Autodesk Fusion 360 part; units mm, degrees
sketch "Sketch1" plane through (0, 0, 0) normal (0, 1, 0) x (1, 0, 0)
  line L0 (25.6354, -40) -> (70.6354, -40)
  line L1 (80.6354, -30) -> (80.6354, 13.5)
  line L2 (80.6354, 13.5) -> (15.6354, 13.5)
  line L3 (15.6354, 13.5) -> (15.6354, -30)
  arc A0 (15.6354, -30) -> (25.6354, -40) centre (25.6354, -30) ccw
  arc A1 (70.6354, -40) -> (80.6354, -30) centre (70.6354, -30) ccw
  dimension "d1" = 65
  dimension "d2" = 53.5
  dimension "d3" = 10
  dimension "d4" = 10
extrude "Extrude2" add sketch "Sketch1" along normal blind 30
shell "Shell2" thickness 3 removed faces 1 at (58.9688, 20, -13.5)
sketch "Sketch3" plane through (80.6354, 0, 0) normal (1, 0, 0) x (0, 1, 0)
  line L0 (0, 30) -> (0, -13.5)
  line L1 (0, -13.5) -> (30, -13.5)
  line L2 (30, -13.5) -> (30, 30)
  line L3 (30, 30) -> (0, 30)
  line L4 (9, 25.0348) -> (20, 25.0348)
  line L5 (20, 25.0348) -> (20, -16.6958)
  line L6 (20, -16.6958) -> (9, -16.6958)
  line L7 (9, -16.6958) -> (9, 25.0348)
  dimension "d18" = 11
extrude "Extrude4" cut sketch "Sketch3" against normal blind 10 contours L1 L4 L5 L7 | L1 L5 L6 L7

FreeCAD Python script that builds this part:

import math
import FreeCAD as App
import Part
import Sketcher
Q = App.Units.Quantity


def faces_at(feature, points):
    """Names of the faces that lie closest to the given points."""
    faces = feature.Shape.Faces
    near = lambda p: min(range(len(faces)), key=lambda i: faces[i].distToShape(Part.Vertex(*p))[0])
    return sorted({f"Face{near(p) + 1}" for p in points})

doc = App.newDocument("Part")
params = doc.addObject("Spreadsheet::Sheet", "Params")
for row, (alias, value) in enumerate([
    ("sketch1_radius", "10 mm"),
    ("sketch1_width", "65 mm"),
    ("pad1_length", "30 mm"),
    ("thickness_wall", "3 mm"),
    ("sketch2_width", "11 mm"),
    ("pocket1_length", "10 mm"),
], start=1):
    params.set(f"A{row}", alias)
    params.set(f"B{row}", "=" + value)
    params.setAlias(f"B{row}", alias)

body = doc.addObject("PartDesign::Body", "Body")

# Sketch on XZ plane
sketch1 = body.newObject("Sketcher::SketchObject", "Sketch")
sketch1.AttachmentSupport = (doc.getObject("XZ_Plane"), [""])
sketch1.MapMode = "FlatFace"
sketch1.addGeometry([
    Part.ArcOfCircle(Part.Circle(App.Vector(26, 30, 0), App.Vector(0, 0, 1), 10), math.radians(90), math.radians(180)),  # 0
    Part.LineSegment(App.Vector(26, 40, 0), App.Vector(71, 40, 0)),  # 1
    Part.ArcOfCircle(Part.Circle(App.Vector(71, 30, 0), App.Vector(0, 0, 1), 10), math.radians(0), math.radians(90)),  # 2
    Part.LineSegment(App.Vector(81, 30, 0), App.Vector(81, -14, 0)),  # 3
    Part.LineSegment(App.Vector(81, -14, 0), App.Vector(16, -14, 0)),  # 4
    Part.LineSegment(App.Vector(16, -14, 0), App.Vector(16, 30, 0)),  # 5
], False)
sketch1.addConstraint([
    Sketcher.Constraint("Tangent", 0, 1, 1, 1),
    Sketcher.Constraint("Tangent", 1, 2, 2, 2),
    Sketcher.Constraint("Tangent", 2, 1, 3, 1),
    Sketcher.Constraint("Coincident", 3, 2, 4, 1),
    Sketcher.Constraint("Coincident", 4, 2, 5, 1),
    Sketcher.Constraint("Tangent", 5, 2, 0, 2),
    Sketcher.Constraint("Horizontal", 1),
    Sketcher.Constraint("Vertical", 3),
    Sketcher.Constraint("Horizontal", 4),
    Sketcher.Constraint("Vertical", 5),
    Sketcher.Constraint("Equal", 0, 2),
    Sketcher.Constraint("Radius", 0, Q("10 mm")),
    Sketcher.Constraint("DistanceX", 4, 2, 4, 1, Q("65 mm")),
    Sketcher.Constraint("DistanceY", 3, 2, 1, 2, Q("53.5 mm")),
    Sketcher.Constraint("DistanceY", -1, 1, 0, 3, Q("30 mm")),
    Sketcher.Constraint("DistanceX", -1, 1, 0, 3, Q("25.6354 mm")),
])
sketch1.setExpression("Constraints[11]", "Params.sketch1_radius")
sketch1.setExpression("Constraints[12]", "Params.sketch1_width")
pad1 = body.newObject("PartDesign::Pad", "Pad")
pad1.Profile = sketch1
pad1.setExpression("Length", "Params.pad1_length")
pad1.Reversed = True
doc.recompute()

thickness = body.newObject("PartDesign::Thickness", "Thickness")
thickness.Base = (pad1, faces_at(pad1, [(58.969, 20, -13.5)]))
thickness.setExpression("Value", "Params.thickness_wall")
thickness.Reversed = True
thickness.Join = "Intersection"

# Sketch on YZ plane
sketch2 = body.newObject("Sketcher::SketchObject", "Sketch001")
sketch2.AttachmentSupport = (doc.getObject("YZ_Plane"), [""])
sketch2.MapMode = "FlatFace"
sketch2.AttachmentOffset = App.Placement(App.Vector(0, 0, 80.6354), App.Rotation())
sketch2.addGeometry([
    Part.LineSegment(App.Vector(9, 25, 0), App.Vector(9, -17, 0)),
    Part.LineSegment(App.Vector(9, -17, 0), App.Vector(20, -17, 0)),
    Part.LineSegment(App.Vector(20, -17, 0), App.Vector(20, 25, 0)),
    Part.LineSegment(App.Vector(20, 25, 0), App.Vector(9, 25, 0)),
], False)
sketch2.addConstraint([
    Sketcher.Constraint("Coincident", 0, 2, 1, 1),
    Sketcher.Constraint("Coincident", 1, 2, 2, 1),
    Sketcher.Constraint("Coincident", 2, 2, 3, 1),
    Sketcher.Constraint("Coincident", 3, 2, 0, 1),
    Sketcher.Constraint("Vertical", 0),
    Sketcher.Constraint("Horizontal", 1),
    Sketcher.Constraint("Vertical", 2),
    Sketcher.Constraint("Horizontal", 3),
    Sketcher.Constraint("DistanceX", 1, 1, 1, 2, Q("11 mm")),
    Sketcher.Constraint("DistanceX", -1, 1, 0, 2, Q("9 mm")),
    Sketcher.Constraint("DistanceY", 0, 2, 0, 1, Q("41.7306 mm")),
    Sketcher.Constraint("DistanceY", 0, 2, -1, 1, Q("16.6958 mm")),
])
sketch2.setExpression("Constraints[8]", "Params.sketch2_width")
pocket1 = body.newObject("PartDesign::Pocket", "Pocket")
pocket1.Profile = sketch2
pocket1.setExpression("Length", "Params.pocket1_length")

doc.recompute()
